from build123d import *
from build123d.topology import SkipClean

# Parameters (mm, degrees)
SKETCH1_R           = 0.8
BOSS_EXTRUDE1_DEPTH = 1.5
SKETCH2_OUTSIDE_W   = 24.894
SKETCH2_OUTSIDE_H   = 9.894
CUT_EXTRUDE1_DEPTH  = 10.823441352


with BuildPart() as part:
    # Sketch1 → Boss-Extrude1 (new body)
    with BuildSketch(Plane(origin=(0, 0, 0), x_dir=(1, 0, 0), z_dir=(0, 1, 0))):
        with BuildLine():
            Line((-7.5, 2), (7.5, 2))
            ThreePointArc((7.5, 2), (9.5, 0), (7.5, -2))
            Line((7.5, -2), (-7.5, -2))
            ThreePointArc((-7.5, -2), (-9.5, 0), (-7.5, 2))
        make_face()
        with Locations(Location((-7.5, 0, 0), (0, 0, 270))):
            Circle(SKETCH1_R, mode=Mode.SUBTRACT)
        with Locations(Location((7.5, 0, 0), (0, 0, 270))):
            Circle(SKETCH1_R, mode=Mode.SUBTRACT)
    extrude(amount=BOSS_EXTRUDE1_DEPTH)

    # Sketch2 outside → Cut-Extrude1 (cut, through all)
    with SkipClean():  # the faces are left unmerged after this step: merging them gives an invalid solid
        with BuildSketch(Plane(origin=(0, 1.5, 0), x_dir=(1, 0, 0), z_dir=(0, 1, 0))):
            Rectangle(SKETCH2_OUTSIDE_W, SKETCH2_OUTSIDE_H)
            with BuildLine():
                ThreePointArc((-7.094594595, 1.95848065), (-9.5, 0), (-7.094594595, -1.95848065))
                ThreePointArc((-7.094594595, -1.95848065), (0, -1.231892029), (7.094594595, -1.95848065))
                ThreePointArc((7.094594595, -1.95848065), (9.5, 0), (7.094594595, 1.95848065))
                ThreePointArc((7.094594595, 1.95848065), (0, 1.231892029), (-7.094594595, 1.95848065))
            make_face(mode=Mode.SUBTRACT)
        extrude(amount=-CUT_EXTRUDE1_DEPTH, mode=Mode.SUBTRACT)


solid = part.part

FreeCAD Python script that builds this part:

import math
import FreeCAD as App
import Part
import Sketcher
from FreeCAD import Vector
Q = App.Units.Quantity


def add_polygon(sketch, points):
    """Adds a closed chain of lines whose ends are joined by coincident constraints."""
    first, n = sketch.GeometryCount, len(points)
    for a, b in zip(points, points[1:] + points[:1]):
        sketch.addGeometry(Part.LineSegment(App.Vector(*a, 0), App.Vector(*b, 0)), False)
    for i in range(n):
        sketch.addConstraint(Sketcher.Constraint("Coincident", first + i, 2, first + (i + 1) % n, 1))

doc = App.newDocument("Part")
body = doc.addObject("PartDesign::Body", "Body")

# Sketch on XZ plane
sketch1 = doc.addObject("Sketcher::SketchObject", "Sketch")
body.addObject(sketch1)
sketch1.AttachmentSupport = (doc.XZ_Plane, [""])
sketch1.MapMode = "FlatFace"
sketch1.addGeometry(Part.LineSegment(Vector(7.5, -2, 0), Vector(-7.5, -2, 0)), False)
sketch1.addGeometry(Part.ArcOfCircle(Part.Circle(Vector(-7.5, 0, 0), Vector(0, 0, 1), 2), math.radians(90), math.radians(270)), False)
sketch1.addGeometry(Part.LineSegment(Vector(-7.5, 2, 0), Vector(7.5, 2, 0)), False)
sketch1.addGeometry(Part.ArcOfCircle(Part.Circle(Vector(7.5, 0, 0), Vector(0, 0, 1), 2), math.radians(-90), math.radians(90)), False)
sketch1.addGeometry(Part.Circle(Vector(7.5, 0, 0), Vector(0, 0, 1), 0.8), False)
sketch1.addGeometry(Part.Circle(Vector(-7.5, 0, 0), Vector(0, 0, 1), 0.8), False)
sketch1.addConstraint(Sketcher.Constraint("Tangent", 0, 2, 1, 2))
sketch1.addConstraint(Sketcher.Constraint("Tangent", 1, 1, 2, 1))
sketch1.addConstraint(Sketcher.Constraint("Tangent", 2, 2, 3, 2))
sketch1.addConstraint(Sketcher.Constraint("Tangent", 3, 1, 0, 1))
sketch1.addConstraint(Sketcher.Constraint("Horizontal", 0))
sketch1.addConstraint(Sketcher.Constraint("Horizontal", 2))
sketch1.addConstraint(Sketcher.Constraint("Coincident", 4, 3, 3, 3))
sketch1.addConstraint(Sketcher.Constraint("Coincident", 5, 3, 1, 3))
sketch1.addConstraint(Sketcher.Constraint("Equal", 4, 5))
sketch1.addConstraint(Sketcher.Constraint("Symmetric", 1, 3, 3, 3, -1, 1))
sketch1.addConstraint(Sketcher.Constraint("Radius", 1, Q("2 mm")))
sketch1.addConstraint(Sketcher.Constraint("Diameter", 4, Q("1.6 mm")))
sketch1.addConstraint(Sketcher.Constraint("DistanceX", 0, 2, 0, 1, Q("15 mm")))
pad1 = doc.addObject("PartDesign::Pad", "Pad")
body.addObject(pad1)
pad1.Profile = sketch1
pad1.Length = 1.5
pad1.Reversed = True

# Sketch on XZ plane
sketch2 = doc.addObject("Sketcher::SketchObject", "Sketch001")
body.addObject(sketch2)
sketch2.AttachmentSupport = (doc.XZ_Plane, [""])
sketch2.MapMode = "FlatFace"
sketch2.AttachmentOffset = App.Placement(Vector(0, 0, -1.5), App.Rotation())
add_polygon(sketch2, [(-12.4, -4.9), (-12.4, 4.9), (12.4, 4.9), (12.4, -4.9)])  # lines 0-3
sketch2.addGeometry(Part.ArcOfCircle(Part.Circle(Vector(-7.5, 0, 0), Vector(0, 0, 1), 2), math.radians(78), math.radians(282)), False)  # 4
sketch2.addGeometry(Part.ArcOfCircle(Part.Circle(Vector(0, -36.2, 0), Vector(0, 0, 1), 35), math.radians(78), math.radians(102)), False)  # 5
sketch2.addGeometry(Part.ArcOfCircle(Part.Circle(Vector(7.5, 0, 0), Vector(0, 0, 1), 2), math.radians(-102), math.radians(102)), False)  # 6
sketch2.addGeometry(Part.ArcOfCircle(Part.Circle(Vector(0, 36.2, 0), Vector(0, 0, 1), 35), math.radians(-102), math.radians(-78)), False)  # 7
sketch2.addConstraint(Sketcher.Constraint("Tangent", 4, 2, 5, 2))
sketch2.addConstraint(Sketcher.Constraint("Tangent", 5, 1, 6, 1))
sketch2.addConstraint(Sketcher.Constraint("Tangent", 6, 2, 7, 2))
sketch2.addConstraint(Sketcher.Constraint("Tangent", 7, 1, 4, 1))
sketch2.addConstraint(Sketcher.Constraint("Vertical", 0))
sketch2.addConstraint(Sketcher.Constraint("Horizontal", 1))
sketch2.addConstraint(Sketcher.Constraint("Vertical", 2))
sketch2.addConstraint(Sketcher.Constraint("Horizontal", 3))
sketch2.addConstraint(Sketcher.Constraint("Equal", 4, 6))
sketch2.addConstraint(Sketcher.Constraint("Equal", 5, 7))
sketch2.addConstraint(Sketcher.Constraint("Symmetric", 4, 3, 6, 3, -1, 1))
sketch2.addConstraint(Sketcher.Constraint("Symmetric", 0, 2, 2, 2, -1, 1))
sketch2.addConstraint(Sketcher.Constraint("PointOnObject", 4, 3, -1))
sketch2.addConstraint(Sketcher.Constraint("Radius", 4, Q("2 mm")))
sketch2.addConstraint(Sketcher.Constraint("Radius", 5, Q("35 mm")))
sketch2.addConstraint(Sketcher.Constraint("DistanceX", 4, 3, 6, 3, Q("15 mm")))
sketch2.addConstraint(Sketcher.Constraint("DistanceX", 1, 1, 1, 2, Q("24.894 mm")))
sketch2.addConstraint(Sketcher.Constraint("DistanceY", 0, 1, 0, 2, Q("9.894 mm")))
pocket1 = doc.addObject("PartDesign::Pocket", "Pocket")
body.addObject(pocket1)
pocket1.Profile = sketch2
pocket1.Type = "ThroughAll"
pocket1.Reversed = True

doc.recompute()
